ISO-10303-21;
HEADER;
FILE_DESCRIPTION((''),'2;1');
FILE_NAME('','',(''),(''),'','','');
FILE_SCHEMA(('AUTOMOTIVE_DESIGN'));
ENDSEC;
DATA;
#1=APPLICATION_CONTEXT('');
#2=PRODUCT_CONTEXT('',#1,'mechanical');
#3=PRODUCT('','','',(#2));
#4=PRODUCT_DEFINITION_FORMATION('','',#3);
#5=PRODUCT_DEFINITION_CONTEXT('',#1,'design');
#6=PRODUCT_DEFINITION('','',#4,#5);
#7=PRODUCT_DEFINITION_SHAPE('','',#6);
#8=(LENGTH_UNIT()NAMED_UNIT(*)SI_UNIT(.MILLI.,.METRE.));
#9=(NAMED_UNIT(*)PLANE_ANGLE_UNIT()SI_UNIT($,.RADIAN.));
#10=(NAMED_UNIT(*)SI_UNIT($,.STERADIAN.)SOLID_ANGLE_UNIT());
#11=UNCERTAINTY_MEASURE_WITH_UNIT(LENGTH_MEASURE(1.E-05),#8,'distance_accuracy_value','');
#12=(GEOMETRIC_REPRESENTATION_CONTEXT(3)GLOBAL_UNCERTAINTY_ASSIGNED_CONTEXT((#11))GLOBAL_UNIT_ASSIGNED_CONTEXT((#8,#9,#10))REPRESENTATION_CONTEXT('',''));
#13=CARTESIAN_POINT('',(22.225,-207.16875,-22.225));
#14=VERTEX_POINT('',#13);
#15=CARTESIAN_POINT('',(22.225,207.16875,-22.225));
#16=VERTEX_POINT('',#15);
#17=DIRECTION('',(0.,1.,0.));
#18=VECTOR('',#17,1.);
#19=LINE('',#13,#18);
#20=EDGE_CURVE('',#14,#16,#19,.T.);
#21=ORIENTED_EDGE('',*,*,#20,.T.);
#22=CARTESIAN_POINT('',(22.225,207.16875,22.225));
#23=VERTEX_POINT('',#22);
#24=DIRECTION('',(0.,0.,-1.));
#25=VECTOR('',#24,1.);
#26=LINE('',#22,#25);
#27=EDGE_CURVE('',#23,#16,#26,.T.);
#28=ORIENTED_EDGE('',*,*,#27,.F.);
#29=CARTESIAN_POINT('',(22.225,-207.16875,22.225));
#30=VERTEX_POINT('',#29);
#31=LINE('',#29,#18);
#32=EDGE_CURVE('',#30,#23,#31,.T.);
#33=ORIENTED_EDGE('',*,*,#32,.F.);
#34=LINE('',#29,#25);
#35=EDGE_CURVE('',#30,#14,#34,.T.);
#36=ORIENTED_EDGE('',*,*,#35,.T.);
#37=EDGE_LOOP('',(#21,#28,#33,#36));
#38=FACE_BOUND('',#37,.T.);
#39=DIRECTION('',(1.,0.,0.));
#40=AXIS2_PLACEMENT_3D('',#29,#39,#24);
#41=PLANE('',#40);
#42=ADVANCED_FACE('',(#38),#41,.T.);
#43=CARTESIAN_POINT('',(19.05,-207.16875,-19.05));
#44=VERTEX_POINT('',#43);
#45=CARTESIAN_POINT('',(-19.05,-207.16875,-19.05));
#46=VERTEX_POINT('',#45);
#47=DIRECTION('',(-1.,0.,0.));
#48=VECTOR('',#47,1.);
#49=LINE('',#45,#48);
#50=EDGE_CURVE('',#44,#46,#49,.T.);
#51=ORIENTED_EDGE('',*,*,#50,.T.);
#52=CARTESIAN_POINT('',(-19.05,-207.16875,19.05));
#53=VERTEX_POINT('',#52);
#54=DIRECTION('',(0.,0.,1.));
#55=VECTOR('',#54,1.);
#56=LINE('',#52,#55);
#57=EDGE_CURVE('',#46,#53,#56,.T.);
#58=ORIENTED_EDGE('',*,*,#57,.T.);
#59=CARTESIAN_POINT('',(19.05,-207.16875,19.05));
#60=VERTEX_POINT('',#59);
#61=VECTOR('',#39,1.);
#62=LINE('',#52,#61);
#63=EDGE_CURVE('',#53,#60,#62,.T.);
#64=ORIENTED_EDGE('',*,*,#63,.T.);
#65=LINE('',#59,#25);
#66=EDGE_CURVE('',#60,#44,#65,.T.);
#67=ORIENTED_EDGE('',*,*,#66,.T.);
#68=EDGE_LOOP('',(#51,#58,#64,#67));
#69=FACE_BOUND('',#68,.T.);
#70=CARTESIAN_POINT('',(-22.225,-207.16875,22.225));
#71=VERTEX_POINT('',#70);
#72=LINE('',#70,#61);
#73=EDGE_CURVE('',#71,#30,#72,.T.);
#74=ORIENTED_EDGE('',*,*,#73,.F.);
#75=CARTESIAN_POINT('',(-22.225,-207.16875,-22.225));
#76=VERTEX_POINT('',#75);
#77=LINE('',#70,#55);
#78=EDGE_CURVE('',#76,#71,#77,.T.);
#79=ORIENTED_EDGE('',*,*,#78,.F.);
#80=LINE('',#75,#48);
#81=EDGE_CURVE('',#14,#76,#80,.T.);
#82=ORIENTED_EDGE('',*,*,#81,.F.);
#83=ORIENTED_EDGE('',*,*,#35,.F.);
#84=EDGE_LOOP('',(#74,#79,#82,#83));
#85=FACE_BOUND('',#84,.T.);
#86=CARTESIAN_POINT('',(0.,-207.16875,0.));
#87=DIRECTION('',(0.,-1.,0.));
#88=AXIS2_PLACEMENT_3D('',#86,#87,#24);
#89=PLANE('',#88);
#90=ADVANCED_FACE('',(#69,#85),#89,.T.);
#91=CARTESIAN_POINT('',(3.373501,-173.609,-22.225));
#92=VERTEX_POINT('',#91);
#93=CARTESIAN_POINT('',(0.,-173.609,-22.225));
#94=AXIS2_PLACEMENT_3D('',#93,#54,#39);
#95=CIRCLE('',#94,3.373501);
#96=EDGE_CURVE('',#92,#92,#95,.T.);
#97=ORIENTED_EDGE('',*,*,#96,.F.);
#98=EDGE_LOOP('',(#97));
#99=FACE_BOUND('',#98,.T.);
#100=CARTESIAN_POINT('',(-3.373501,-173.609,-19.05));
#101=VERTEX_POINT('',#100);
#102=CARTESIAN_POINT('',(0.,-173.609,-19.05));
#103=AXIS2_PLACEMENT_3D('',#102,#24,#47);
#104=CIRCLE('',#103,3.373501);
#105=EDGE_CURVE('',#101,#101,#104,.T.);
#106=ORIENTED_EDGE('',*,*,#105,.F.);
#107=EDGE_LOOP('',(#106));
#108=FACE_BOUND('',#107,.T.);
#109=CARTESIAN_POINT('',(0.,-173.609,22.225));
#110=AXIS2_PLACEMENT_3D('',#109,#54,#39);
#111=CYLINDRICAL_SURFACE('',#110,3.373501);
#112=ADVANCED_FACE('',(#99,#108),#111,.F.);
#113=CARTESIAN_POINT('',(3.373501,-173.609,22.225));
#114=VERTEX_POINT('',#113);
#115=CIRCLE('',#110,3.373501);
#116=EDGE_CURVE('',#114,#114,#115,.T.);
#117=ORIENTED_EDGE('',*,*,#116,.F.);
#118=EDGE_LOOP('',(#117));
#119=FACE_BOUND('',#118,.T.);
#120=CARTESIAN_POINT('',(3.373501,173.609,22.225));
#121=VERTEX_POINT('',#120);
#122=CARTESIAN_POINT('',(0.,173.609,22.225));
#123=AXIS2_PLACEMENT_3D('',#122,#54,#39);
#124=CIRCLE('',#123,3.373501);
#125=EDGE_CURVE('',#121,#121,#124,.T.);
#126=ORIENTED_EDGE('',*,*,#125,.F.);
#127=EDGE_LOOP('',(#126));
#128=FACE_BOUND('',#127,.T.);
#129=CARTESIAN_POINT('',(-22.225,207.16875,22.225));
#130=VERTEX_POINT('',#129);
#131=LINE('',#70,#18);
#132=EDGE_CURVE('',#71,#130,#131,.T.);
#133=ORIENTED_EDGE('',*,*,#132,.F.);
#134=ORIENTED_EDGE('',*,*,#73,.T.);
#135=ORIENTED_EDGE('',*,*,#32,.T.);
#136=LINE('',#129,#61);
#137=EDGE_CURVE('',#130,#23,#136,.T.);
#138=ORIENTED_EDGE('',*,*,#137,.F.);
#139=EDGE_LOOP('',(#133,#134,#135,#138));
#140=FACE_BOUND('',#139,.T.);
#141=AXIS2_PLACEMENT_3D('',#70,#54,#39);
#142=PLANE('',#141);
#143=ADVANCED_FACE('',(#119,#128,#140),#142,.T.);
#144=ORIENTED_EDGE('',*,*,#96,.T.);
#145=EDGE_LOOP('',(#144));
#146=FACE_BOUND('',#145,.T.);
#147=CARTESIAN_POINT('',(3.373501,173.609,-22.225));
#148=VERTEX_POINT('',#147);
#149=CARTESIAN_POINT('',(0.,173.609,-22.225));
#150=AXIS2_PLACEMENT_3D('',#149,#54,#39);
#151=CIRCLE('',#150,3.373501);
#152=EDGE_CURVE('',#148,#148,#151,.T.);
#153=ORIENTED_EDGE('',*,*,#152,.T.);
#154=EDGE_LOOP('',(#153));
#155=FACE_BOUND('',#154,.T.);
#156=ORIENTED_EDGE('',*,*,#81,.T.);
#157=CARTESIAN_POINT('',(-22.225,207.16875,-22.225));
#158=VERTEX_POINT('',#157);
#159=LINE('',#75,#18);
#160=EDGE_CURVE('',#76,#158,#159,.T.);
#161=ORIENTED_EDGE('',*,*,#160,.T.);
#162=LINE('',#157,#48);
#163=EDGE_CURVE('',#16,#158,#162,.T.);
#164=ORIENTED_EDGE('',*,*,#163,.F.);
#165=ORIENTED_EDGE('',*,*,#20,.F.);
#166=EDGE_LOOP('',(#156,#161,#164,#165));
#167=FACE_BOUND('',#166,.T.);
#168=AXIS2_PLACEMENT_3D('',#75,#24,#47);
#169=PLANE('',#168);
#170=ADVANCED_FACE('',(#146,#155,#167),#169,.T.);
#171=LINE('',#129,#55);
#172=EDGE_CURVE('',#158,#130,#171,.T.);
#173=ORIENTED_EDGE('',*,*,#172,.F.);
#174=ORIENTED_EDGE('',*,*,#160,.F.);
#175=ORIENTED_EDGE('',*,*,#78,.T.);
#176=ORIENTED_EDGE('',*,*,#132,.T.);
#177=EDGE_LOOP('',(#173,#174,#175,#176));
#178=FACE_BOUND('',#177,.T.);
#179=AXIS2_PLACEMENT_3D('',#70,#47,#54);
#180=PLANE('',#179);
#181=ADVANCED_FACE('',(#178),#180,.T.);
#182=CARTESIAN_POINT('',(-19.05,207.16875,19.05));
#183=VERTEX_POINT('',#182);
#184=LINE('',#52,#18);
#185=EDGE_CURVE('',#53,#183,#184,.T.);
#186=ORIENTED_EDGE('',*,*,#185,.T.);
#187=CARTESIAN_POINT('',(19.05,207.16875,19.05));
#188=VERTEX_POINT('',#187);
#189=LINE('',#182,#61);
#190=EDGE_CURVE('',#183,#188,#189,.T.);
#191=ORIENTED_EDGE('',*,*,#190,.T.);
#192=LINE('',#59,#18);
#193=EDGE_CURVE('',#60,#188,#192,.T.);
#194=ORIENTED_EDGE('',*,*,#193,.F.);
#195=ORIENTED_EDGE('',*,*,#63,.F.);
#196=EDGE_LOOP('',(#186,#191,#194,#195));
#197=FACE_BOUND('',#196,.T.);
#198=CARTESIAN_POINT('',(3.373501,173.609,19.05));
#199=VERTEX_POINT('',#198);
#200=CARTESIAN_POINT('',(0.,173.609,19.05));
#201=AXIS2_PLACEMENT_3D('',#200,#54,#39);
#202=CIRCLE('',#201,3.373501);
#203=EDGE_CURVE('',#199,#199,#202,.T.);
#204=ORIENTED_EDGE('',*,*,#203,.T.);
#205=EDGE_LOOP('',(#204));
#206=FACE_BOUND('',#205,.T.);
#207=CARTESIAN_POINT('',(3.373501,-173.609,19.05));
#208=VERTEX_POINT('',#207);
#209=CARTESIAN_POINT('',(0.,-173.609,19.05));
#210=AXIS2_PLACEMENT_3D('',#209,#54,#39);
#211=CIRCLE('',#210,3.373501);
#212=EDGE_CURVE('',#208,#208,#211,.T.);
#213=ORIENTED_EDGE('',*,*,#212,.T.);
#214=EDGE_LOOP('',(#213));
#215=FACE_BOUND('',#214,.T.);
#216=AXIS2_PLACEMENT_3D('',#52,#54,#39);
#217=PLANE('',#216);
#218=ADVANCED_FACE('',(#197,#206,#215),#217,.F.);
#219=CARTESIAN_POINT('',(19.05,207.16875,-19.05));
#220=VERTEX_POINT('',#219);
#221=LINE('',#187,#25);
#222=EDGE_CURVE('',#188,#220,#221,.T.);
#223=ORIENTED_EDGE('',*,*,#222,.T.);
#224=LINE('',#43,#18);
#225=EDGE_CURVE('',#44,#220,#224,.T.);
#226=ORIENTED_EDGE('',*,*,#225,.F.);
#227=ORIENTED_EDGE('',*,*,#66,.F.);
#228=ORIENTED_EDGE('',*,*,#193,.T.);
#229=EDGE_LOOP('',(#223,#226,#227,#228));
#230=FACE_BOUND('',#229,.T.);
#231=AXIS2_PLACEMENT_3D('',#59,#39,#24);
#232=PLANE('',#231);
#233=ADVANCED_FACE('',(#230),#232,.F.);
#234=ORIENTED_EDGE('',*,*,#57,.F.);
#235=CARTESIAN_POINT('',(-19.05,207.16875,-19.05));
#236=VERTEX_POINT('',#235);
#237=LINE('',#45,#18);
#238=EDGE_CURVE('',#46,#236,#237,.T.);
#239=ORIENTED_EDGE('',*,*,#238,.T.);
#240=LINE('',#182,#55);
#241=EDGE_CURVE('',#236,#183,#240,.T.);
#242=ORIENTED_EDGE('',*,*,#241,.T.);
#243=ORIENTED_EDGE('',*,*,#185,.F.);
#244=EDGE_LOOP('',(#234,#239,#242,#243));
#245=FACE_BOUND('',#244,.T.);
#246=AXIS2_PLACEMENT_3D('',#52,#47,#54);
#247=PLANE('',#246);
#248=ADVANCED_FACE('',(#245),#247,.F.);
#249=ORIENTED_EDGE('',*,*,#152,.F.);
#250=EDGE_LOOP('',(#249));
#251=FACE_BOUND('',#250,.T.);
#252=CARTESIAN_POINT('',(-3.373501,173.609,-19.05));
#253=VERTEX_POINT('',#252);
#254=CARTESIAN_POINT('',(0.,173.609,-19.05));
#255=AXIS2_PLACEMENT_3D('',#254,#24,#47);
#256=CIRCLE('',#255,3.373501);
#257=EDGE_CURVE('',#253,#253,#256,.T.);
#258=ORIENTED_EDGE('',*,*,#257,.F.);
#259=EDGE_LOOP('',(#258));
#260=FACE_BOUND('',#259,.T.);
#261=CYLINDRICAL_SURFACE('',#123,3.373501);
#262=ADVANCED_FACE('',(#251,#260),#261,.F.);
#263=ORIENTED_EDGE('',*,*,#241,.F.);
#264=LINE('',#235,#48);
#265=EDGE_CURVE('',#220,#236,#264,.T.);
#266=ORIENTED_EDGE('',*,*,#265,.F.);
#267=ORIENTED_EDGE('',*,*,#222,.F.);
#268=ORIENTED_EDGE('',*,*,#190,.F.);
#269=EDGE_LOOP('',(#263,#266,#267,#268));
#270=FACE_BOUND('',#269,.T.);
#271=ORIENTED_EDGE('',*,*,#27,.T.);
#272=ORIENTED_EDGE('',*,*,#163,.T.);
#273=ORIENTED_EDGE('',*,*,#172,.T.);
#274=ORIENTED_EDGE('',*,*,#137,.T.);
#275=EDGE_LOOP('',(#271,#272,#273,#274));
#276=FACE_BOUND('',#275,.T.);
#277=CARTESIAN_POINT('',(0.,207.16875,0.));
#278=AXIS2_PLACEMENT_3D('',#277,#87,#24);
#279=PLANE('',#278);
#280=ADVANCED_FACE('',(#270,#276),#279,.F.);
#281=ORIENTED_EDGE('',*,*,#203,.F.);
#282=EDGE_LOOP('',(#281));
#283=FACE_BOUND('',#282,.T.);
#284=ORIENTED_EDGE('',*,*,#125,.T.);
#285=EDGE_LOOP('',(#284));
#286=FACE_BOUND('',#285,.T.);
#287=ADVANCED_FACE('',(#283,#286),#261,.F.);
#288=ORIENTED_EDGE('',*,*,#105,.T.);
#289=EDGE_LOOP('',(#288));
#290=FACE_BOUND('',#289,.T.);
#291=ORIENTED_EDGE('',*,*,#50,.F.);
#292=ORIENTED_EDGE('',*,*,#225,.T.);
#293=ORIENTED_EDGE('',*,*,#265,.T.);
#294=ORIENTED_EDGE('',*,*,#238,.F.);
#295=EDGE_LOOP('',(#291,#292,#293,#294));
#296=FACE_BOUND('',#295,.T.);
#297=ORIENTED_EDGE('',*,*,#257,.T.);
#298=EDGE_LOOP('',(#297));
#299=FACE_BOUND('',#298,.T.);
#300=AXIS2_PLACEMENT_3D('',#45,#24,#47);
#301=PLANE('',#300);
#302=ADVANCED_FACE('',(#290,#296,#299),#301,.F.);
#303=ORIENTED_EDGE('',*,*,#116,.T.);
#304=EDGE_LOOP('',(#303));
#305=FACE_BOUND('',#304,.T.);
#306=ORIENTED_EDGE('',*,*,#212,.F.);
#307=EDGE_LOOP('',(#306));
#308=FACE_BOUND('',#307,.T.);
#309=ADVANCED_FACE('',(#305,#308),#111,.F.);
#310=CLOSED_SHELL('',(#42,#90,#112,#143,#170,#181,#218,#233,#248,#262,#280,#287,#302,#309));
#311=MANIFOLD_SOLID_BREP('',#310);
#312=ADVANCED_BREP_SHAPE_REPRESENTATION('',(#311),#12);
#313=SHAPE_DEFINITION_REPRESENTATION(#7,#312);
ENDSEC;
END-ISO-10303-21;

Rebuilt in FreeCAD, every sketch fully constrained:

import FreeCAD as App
import Part
import Sketcher
from FreeCAD import Vector
Q = App.Units.Quantity

doc = App.newDocument("Part")
body = doc.addObject("PartDesign::Body", "Body")

# Sketch on XZ plane
sketch1 = body.newObject("Sketcher::SketchObject", "Sketch")
sketch1.AttachmentSupport = (doc.getObject("XZ_Plane"), [""])
sketch1.MapMode = "FlatFace"
sketch1.addGeometry([
    Part.LineSegment(Vector(-22, -22, 0), Vector(-22, 22, 0)),  # 0
    Part.LineSegment(Vector(-22, 22, 0), Vector(22, 22, 0)),  # 1
    Part.LineSegment(Vector(22, 22, 0), Vector(22, -22, 0)),  # 2
    Part.LineSegment(Vector(22, -22, 0), Vector(-22, -22, 0)),  # 3
    Part.LineSegment(Vector(19, 19, 0), Vector(-19, 19, 0)),  # 4
    Part.LineSegment(Vector(-19, 19, 0), Vector(-19, -19, 0)),  # 5
    Part.LineSegment(Vector(-19, -19, 0), Vector(19, -19, 0)),  # 6
    Part.LineSegment(Vector(19, -19, 0), Vector(19, 19, 0)),  # 7
], False)
sketch1.addConstraint([
    Sketcher.Constraint("Coincident", 0, 2, 1, 1),
    Sketcher.Constraint("Coincident", 1, 2, 2, 1),
    Sketcher.Constraint("Coincident", 2, 2, 3, 1),
    Sketcher.Constraint("Coincident", 3, 2, 0, 1),
    Sketcher.Constraint("Coincident", 4, 2, 5, 1),
    Sketcher.Constraint("Coincident", 5, 2, 6, 1),
    Sketcher.Constraint("Coincident", 6, 2, 7, 1),
    Sketcher.Constraint("Coincident", 7, 2, 4, 1),
    Sketcher.Constraint("Vertical", 0),
    Sketcher.Constraint("Horizontal", 1),
    Sketcher.Constraint("Vertical", 2),
    Sketcher.Constraint("Horizontal", 3),
    Sketcher.Constraint("Horizontal", 4),
    Sketcher.Constraint("Vertical", 5),
    Sketcher.Constraint("Horizontal", 6),
    Sketcher.Constraint("Vertical", 7),
    Sketcher.Constraint("Symmetric", 0, 2, 2, 2, -1, 1),
    Sketcher.Constraint("Symmetric", 4, 2, 6, 2, -1, 1),
    Sketcher.Constraint("Equal", 3, 0),
    Sketcher.Constraint("Equal", 6, 5),
    Sketcher.Constraint("DistanceX", 4, 2, 4, 1, Q("1.5 in")),
    Sketcher.Constraint("DistanceX", 1, 1, 1, 2, Q("1.75 in")),
])
pad1 = body.newObject("PartDesign::Pad", "Pad")
pad1.Profile = sketch1
pad1.Type = "TwoLengths"
pad1.Length = Q("8.15625 in")
pad1.Length2 = Q("8.15625 in")
pad1.Reversed = True

# Sketch on XY plane
sketch2 = body.newObject("Sketcher::SketchObject", "Sketch001")
sketch2.AttachmentSupport = (doc.getObject("XY_Plane"), [""])
sketch2.MapMode = "FlatFace"
sketch2.AttachmentOffset = App.Placement(Vector(0, 0, 0.875 * 25.4), App.Rotation())
sketch2.addGeometry([
    Part.Circle(Vector(0, 173.6, 0), Vector(0, 0, 1), 3.4),
    Part.Circle(Vector(0, -173.6, 0), Vector(0, 0, 1), 3.4),
], False)
sketch2.addConstraint([
    Sketcher.Constraint("Equal", 0, 1),
    Sketcher.Constraint("Symmetric", 0, 3, 1, 3, -1, 1),
    Sketcher.Constraint("PointOnObject", 0, 3, -2),
    Sketcher.Constraint("DistanceY", 1, 3, 0, 3, Q("13.67 in")),
    Sketcher.Constraint("Diameter", 0, Q("6.747002 mm")),
])
doc.recompute()
hole = body.newObject("PartDesign::Hole", "Hole")
hole.Profile = sketch2
hole.ThreadType = "None"
hole.Diameter = 6.747002
hole.DepthType = "ThroughAll"

doc.recompute()
